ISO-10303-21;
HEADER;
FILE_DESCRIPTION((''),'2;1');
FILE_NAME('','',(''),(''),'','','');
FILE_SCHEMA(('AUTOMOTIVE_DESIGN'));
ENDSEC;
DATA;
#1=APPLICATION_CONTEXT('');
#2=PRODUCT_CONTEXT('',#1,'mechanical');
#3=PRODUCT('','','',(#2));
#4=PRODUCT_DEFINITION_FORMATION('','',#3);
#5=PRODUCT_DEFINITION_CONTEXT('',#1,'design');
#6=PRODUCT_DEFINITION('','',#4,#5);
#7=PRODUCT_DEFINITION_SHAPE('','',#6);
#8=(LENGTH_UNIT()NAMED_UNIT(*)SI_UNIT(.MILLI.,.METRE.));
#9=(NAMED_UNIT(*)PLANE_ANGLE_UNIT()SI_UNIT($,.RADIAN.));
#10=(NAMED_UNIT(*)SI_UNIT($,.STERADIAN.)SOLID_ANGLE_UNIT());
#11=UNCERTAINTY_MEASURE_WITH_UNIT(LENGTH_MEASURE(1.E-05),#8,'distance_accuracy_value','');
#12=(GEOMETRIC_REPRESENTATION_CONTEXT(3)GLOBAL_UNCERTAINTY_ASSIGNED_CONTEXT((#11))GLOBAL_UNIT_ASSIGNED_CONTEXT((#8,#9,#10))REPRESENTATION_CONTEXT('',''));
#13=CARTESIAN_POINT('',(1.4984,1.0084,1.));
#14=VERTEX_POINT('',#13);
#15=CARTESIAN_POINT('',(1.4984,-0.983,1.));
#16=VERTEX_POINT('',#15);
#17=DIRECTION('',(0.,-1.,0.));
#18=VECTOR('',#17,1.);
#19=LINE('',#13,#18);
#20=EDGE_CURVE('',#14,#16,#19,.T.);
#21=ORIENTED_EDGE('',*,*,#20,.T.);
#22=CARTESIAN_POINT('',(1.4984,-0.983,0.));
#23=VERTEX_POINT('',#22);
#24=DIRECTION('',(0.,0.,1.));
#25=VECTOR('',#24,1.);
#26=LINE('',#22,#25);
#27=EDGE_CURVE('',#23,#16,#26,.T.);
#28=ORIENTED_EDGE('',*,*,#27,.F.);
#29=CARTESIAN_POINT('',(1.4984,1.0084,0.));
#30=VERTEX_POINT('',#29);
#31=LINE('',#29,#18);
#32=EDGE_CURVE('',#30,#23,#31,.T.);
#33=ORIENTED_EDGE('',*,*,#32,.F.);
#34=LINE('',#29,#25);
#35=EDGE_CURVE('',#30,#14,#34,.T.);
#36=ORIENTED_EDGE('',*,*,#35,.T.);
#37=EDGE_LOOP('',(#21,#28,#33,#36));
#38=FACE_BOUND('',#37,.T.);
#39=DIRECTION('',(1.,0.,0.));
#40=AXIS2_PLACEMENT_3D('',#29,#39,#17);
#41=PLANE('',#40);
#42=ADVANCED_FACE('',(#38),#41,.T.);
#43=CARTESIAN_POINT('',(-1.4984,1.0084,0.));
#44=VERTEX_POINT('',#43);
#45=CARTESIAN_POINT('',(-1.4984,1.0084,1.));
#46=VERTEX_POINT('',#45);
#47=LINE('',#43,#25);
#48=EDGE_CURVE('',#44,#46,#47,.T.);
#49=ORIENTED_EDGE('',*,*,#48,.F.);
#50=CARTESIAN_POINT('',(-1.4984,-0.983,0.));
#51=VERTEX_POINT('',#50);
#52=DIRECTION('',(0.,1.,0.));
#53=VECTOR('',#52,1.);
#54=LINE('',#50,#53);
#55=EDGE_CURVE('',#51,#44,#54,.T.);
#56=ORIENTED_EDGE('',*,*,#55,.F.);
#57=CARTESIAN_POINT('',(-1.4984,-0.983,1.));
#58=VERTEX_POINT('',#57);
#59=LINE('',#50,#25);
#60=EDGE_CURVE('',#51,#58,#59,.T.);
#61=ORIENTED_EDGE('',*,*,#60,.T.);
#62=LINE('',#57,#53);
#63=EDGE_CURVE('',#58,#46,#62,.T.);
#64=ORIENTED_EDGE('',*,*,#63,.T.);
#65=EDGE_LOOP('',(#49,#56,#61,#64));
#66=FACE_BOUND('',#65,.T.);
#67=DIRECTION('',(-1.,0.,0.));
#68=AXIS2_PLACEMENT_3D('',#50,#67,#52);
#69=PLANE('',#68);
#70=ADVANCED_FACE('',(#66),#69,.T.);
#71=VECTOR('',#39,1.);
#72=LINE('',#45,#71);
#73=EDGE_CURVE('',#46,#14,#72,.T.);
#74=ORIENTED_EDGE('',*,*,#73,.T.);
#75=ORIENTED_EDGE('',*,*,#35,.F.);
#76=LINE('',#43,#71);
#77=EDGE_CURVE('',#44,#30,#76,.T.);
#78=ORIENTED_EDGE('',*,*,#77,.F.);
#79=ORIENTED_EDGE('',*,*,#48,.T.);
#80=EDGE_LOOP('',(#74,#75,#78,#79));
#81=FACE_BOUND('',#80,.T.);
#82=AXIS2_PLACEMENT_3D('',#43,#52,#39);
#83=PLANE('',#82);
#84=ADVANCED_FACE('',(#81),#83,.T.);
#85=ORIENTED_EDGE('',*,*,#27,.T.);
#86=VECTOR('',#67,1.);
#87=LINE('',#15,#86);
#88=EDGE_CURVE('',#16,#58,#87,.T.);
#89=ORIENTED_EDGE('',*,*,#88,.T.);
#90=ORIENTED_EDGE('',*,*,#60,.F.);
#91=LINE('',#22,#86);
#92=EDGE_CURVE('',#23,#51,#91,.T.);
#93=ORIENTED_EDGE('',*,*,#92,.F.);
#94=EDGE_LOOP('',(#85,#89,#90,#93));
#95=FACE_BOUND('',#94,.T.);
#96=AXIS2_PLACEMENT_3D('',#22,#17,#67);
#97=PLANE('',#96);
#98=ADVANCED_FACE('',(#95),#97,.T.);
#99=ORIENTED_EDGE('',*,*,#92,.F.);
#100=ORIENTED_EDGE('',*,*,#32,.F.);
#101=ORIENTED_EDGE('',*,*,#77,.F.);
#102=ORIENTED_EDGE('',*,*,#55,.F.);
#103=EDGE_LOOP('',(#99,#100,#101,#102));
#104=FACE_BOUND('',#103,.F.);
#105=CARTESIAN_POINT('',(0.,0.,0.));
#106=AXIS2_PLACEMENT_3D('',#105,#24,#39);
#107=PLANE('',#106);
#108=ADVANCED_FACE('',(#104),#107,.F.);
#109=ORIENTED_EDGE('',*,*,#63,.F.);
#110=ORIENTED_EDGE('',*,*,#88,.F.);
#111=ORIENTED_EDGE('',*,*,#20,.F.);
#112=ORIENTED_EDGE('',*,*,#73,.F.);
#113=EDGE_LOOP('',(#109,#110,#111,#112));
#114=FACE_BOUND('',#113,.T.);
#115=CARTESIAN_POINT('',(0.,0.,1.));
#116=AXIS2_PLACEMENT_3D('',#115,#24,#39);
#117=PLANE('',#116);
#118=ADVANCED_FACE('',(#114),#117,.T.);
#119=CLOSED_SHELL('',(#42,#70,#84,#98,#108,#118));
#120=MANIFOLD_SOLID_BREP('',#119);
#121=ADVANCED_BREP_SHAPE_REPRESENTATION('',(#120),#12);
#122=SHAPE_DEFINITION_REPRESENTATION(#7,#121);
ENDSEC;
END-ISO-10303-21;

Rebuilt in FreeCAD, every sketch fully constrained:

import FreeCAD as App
import Part
import Sketcher

V = App.Vector
Q = App.Units.Quantity

doc = App.newDocument("Part")
params = doc.addObject("Spreadsheet::Sheet", "Params")
for row, (alias, value) in enumerate([
    ("pad1_length", "1 mm"),
], start=1):
    params.set(f"A{row}", alias)
    params.set(f"B{row}", "=" + value)
    params.setAlias(f"B{row}", alias)

body = doc.addObject("PartDesign::Body", "Body")

sketch1 = body.newObject("Sketcher::SketchObject", "Sketch")
sketch1.AttachmentSupport = (doc.getObject("XY_Plane"), [""])
sketch1.MapMode = "FlatFace"
sketch1.addGeometry([
    Part.LineSegment(V(1.5, 1, 0), V(-1.5, 1, 0)),
    Part.LineSegment(V(-1.5, 1, 0), V(-1.5, -1, 0)),
    Part.LineSegment(V(-1.5, -1, 0), V(1.5, -1, 0)),
    Part.LineSegment(V(1.5, -1, 0), V(1.5, 1, 0)),
], False)
sketch1.addConstraint([
    Sketcher.Constraint("Coincident", 0, 2, 1, 1),
    Sketcher.Constraint("Coincident", 1, 2, 2, 1),
    Sketcher.Constraint("Coincident", 2, 2, 3, 1),
    Sketcher.Constraint("Coincident", 3, 2, 0, 1),
    Sketcher.Constraint("Horizontal", 0),
    Sketcher.Constraint("Vertical", 1),
    Sketcher.Constraint("Horizontal", 2),
    Sketcher.Constraint("Vertical", 3),
    Sketcher.Constraint("DistanceX", 0, 2, 0, 1, Q("2.9968 mm")),
    Sketcher.Constraint("DistanceY", 1, 2, 1, 1, Q("1.9914 mm")),
    Sketcher.Constraint("DistanceY", 1, 2, -1, 1, Q("0.983 mm")),
    Sketcher.Constraint("DistanceX", 0, 2, -1, 1, Q("1.4984 mm")),
])
pad1 = body.newObject("PartDesign::Pad", "Pad")
pad1.Profile = sketch1
pad1.setExpression("Length", "Params.pad1_length")

doc.recompute()
